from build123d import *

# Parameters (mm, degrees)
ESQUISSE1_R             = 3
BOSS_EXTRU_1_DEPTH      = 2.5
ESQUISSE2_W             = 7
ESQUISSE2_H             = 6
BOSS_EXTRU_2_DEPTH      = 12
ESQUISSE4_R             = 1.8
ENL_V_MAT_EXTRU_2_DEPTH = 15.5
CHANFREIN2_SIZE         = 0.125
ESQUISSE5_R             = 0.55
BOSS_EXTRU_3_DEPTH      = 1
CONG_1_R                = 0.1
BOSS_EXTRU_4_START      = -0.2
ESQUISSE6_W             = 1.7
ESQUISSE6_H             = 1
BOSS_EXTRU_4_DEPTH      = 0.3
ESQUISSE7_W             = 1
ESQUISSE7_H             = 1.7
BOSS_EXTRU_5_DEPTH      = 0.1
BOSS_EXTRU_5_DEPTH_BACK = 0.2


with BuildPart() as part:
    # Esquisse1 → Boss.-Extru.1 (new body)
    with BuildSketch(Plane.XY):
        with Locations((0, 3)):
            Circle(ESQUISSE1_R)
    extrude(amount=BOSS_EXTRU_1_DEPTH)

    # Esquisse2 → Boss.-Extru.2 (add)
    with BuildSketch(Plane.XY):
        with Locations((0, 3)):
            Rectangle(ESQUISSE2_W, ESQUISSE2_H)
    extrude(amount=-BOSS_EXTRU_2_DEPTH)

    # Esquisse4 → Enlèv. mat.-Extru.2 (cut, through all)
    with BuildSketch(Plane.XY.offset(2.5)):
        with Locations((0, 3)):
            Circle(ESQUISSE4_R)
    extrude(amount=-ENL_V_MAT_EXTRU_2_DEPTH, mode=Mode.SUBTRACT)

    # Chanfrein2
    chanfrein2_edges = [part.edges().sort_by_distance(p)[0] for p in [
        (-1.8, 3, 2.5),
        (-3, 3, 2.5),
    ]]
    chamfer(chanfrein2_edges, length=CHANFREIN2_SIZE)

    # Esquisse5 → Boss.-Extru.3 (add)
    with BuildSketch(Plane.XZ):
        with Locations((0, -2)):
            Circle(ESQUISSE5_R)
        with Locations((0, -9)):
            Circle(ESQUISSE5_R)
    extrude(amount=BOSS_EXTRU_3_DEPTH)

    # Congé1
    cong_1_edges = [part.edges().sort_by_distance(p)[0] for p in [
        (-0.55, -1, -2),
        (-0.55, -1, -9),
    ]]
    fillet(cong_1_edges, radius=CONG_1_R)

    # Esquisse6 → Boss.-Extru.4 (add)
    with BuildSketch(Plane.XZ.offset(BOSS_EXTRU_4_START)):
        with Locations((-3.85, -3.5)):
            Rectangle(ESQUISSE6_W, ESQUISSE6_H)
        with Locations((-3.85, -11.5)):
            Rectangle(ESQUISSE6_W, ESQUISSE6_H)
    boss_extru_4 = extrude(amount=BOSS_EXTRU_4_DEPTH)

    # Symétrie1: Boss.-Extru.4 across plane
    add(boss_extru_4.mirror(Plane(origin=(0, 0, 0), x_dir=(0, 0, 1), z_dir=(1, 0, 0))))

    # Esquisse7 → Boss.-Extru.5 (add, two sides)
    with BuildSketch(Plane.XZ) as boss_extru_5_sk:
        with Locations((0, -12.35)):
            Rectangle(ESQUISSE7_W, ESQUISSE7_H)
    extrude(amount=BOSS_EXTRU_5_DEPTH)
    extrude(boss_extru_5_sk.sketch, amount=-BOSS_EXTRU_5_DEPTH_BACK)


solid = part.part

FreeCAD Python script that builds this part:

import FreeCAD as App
import Part
import Sketcher
from FreeCAD import Vector


def edges_at(feature, points):
    """Names of the edges that pass closest to the given points."""
    edges = feature.Shape.Edges
    near = lambda p: min(range(len(edges)), key=lambda i: edges[i].distToShape(Part.Vertex(*p))[0])
    return sorted({f"Edge{near(p) + 1}" for p in points})

doc = App.newDocument("Part")
body = doc.addObject("PartDesign::Body", "Body")

sketch1 = body.newObject("Sketcher::SketchObject", "Sketch")
sketch1.AttachmentSupport = (doc.getObject("XY_Plane"), [""])
sketch1.MapMode = "FlatFace"
sketch1.addGeometry(Part.Circle(Vector(0, 3, 0), Vector(0, 0, 1), 3), False)
sketch1.addConstraint(Sketcher.Constraint("PointOnObject", 0, 3, -2))
sketch1.addConstraint(Sketcher.Constraint("Diameter", 0, 6.0))
sketch1.addConstraint(Sketcher.Constraint("DistanceY", -1, 1, 0, 3, 3.0))
pad1 = body.newObject("PartDesign::Pad", "Pad")
pad1.Profile = sketch1
pad1.Length = 2.5

sketch2 = body.newObject("Sketcher::SketchObject", "Sketch001")
sketch2.AttachmentSupport = (doc.getObject("XY_Plane"), [""])
sketch2.MapMode = "FlatFace"
sketch2.addGeometry(Part.LineSegment(Vector(-4, 6, 0), Vector(-4, 0, 0)), False)
sketch2.addGeometry(Part.LineSegment(Vector(-4, 0, 0), Vector(4, 0, 0)), False)
sketch2.addGeometry(Part.LineSegment(Vector(4, 0, 0), Vector(4, 6, 0)), False)
sketch2.addGeometry(Part.LineSegment(Vector(4, 6, 0), Vector(-4, 6, 0)), False)
sketch2.addConstraint(Sketcher.Constraint("Coincident", 0, 2, 1, 1))
sketch2.addConstraint(Sketcher.Constraint("Coincident", 1, 2, 2, 1))
sketch2.addConstraint(Sketcher.Constraint("Coincident", 2, 2, 3, 1))
sketch2.addConstraint(Sketcher.Constraint("Coincident", 3, 2, 0, 1))
sketch2.addConstraint(Sketcher.Constraint("Vertical", 0))
sketch2.addConstraint(Sketcher.Constraint("Horizontal", 1))
sketch2.addConstraint(Sketcher.Constraint("Vertical", 2))
sketch2.addConstraint(Sketcher.Constraint("Horizontal", 3))
sketch2.addConstraint(Sketcher.Constraint("Symmetric", 0, 2, 1, 2, -1, 1))
sketch2.addConstraint(Sketcher.Constraint("DistanceX", 1, 1, 1, 2, 7.0))
sketch2.addConstraint(Sketcher.Constraint("DistanceY", 0, 2, 0, 1, 6.0))
pad2 = body.newObject("PartDesign::Pad", "Pad001")
pad2.Profile = sketch2
pad2.Length = 12
pad2.Reversed = True

sketch3 = body.newObject("Sketcher::SketchObject", "Sketch002")
sketch3.AttachmentSupport = (doc.getObject("XY_Plane"), [""])
sketch3.MapMode = "FlatFace"
sketch3.AttachmentOffset = App.Placement(Vector(0, 0, 2.5), App.Rotation())
sketch3.addGeometry(Part.Circle(Vector(0, 3, 0), Vector(0, 0, 1), 1.8), False)
sketch3.addConstraint(Sketcher.Constraint("PointOnObject", 0, 3, -2))
sketch3.addConstraint(Sketcher.Constraint("Diameter", 0, 3.6))
sketch3.addConstraint(Sketcher.Constraint("DistanceY", -1, 1, 0, 3, 3.0))
pocket1 = body.newObject("PartDesign::Pocket", "Pocket")
pocket1.Profile = sketch3
pocket1.Type = "ThroughAll"
doc.recompute()

chamfer = body.newObject("PartDesign::Chamfer", "Chamfer")
chamfer.Base = (pocket1, edges_at(pocket1, [(-1.8, 3, 2.5), (-3, 3, 2.5)]))
chamfer.Size = 0.125

sketch4 = body.newObject("Sketcher::SketchObject", "Sketch003")
sketch4.AttachmentSupport = (doc.getObject("XZ_Plane"), [""])
sketch4.MapMode = "FlatFace"
sketch4.addGeometry(Part.Circle(Vector(0, -2, 0), Vector(0, 0, 1), 0.6), False)
sketch4.addGeometry(Part.Circle(Vector(0, -9, 0), Vector(0, 0, 1), 0.6), False)
sketch4.addConstraint(Sketcher.Constraint("Equal", 0, 1))
sketch4.addConstraint(Sketcher.Constraint("PointOnObject", 0, 3, -2))
sketch4.addConstraint(Sketcher.Constraint("PointOnObject", 1, 3, -2))
sketch4.addConstraint(Sketcher.Constraint("Diameter", 0, 1.1))
sketch4.addConstraint(Sketcher.Constraint("DistanceY", 0, 3, -1, 1, 2.0))
sketch4.addConstraint(Sketcher.Constraint("DistanceY", 1, 3, -1, 1, 9.0))
pad3 = body.newObject("PartDesign::Pad", "Pad002")
pad3.Profile = sketch4
pad3.Length = 1
doc.recompute()

fillet = body.newObject("PartDesign::Fillet", "Fillet")
fillet.Base = (pad3, edges_at(pad3, [(-0.55, -1, -2), (-0.55, -1, -9)]))
fillet.Radius = 0.1

sketch5 = body.newObject("Sketcher::SketchObject", "Sketch004")
sketch5.AttachmentSupport = (doc.getObject("XZ_Plane"), [""])
sketch5.MapMode = "FlatFace"
sketch5.AttachmentOffset = App.Placement(Vector(0, 0, -0.2), App.Rotation())
sketch5.addGeometry(Part.LineSegment(Vector(-4.7, -3, 0), Vector(-4.7, -4, 0)), False)
sketch5.addGeometry(Part.LineSegment(Vector(-4.7, -4, 0), Vector(-3, -4, 0)), False)
sketch5.addGeometry(Part.LineSegment(Vector(-3, -4, 0), Vector(-3, -3, 0)), False)
sketch5.addGeometry(Part.LineSegment(Vector(-3, -3, 0), Vector(-4.7, -3, 0)), False)
sketch5.addGeometry(Part.LineSegment(Vector(-4.7, -11, 0), Vector(-4.7, -12, 0)), False)
sketch5.addGeometry(Part.LineSegment(Vector(-4.7, -12, 0), Vector(-3, -12, 0)), False)
sketch5.addGeometry(Part.LineSegment(Vector(-3, -12, 0), Vector(-3, -11, 0)), False)
sketch5.addGeometry(Part.LineSegment(Vector(-3, -11, 0), Vector(-4.7, -11, 0)), False)
sketch5.addConstraint(Sketcher.Constraint("Coincident", 0, 2, 1, 1))
sketch5.addConstraint(Sketcher.Constraint("Coincident", 1, 2, 2, 1))
sketch5.addConstraint(Sketcher.Constraint("Coincident", 2, 2, 3, 1))
sketch5.addConstraint(Sketcher.Constraint("Coincident", 3, 2, 0, 1))
sketch5.addConstraint(Sketcher.Constraint("Coincident", 4, 2, 5, 1))
sketch5.addConstraint(Sketcher.Constraint("Coincident", 5, 2, 6, 1))
sketch5.addConstraint(Sketcher.Constraint("Coincident", 6, 2, 7, 1))
sketch5.addConstraint(Sketcher.Constraint("Coincident", 7, 2, 4, 1))
sketch5.addConstraint(Sketcher.Constraint("Vertical", 0))
sketch5.addConstraint(Sketcher.Constraint("Horizontal", 1))
sketch5.addConstraint(Sketcher.Constraint("Vertical", 2))
sketch5.addConstraint(Sketcher.Constraint("Horizontal", 3))
sketch5.addConstraint(Sketcher.Constraint("Vertical", 4))
sketch5.addConstraint(Sketcher.Constraint("Horizontal", 5))
sketch5.addConstraint(Sketcher.Constraint("Vertical", 6))
sketch5.addConstraint(Sketcher.Constraint("Horizontal", 7))
sketch5.addConstraint(Sketcher.Constraint("Vertical", 3, 2, 4, 2))
sketch5.addConstraint(Sketcher.Constraint("Vertical", 2, 2, 5, 2))
sketch5.addConstraint(Sketcher.Constraint("Equal", 2, 4))
sketch5.addConstraint(Sketcher.Constraint("DistanceY", 0, 2, 0, 1, 1.0))
sketch5.addConstraint(Sketcher.Constraint("DistanceX", 1, 1, 1, 2, 1.7))
sketch5.addConstraint(Sketcher.Constraint("DistanceY", 0, 2, -1, 1, 4.0))
sketch5.addConstraint(Sketcher.Constraint("DistanceX", 1, 2, -1, 1, 3.0))
sketch5.addConstraint(Sketcher.Constraint("DistanceY", 4, 2, -1, 1, 12.0))
pad4 = body.newObject("PartDesign::Pad", "Pad003")
pad4.Profile = sketch5
pad4.Length = 0.3
doc.recompute()

mirrored = body.newObject("PartDesign::Mirrored", "Mirrored")
mirrored.Originals = [pad4]
mirrored.MirrorPlane = (doc.getObject("YZ_Plane"), [""])
body.Tip = mirrored

sketch6 = body.newObject("Sketcher::SketchObject", "Sketch005")
sketch6.AttachmentSupport = (doc.getObject("XZ_Plane"), [""])
sketch6.MapMode = "FlatFace"
sketch6.addGeometry(Part.LineSegment(Vector(-0.5, -11.5, 0), Vector(-0.5, -13.2, 0)), False)
sketch6.addGeometry(Part.LineSegment(Vector(-0.5, -13.2, 0), Vector(0.5, -13.2, 0)), False)
sketch6.addGeometry(Part.LineSegment(Vector(0.5, -13.2, 0), Vector(0.5, -11.5, 0)), False)
sketch6.addGeometry(Part.LineSegment(Vector(0.5, -11.5, 0), Vector(-0.5, -11.5, 0)), False)
sketch6.addConstraint(Sketcher.Constraint("Coincident", 0, 2, 1, 1))
sketch6.addConstraint(Sketcher.Constraint("Coincident", 1, 2, 2, 1))
sketch6.addConstraint(Sketcher.Constraint("Coincident", 2, 2, 3, 1))
sketch6.addConstraint(Sketcher.Constraint("Coincident", 3, 2, 0, 1))
sketch6.addConstraint(Sketcher.Constraint("Vertical", 0))
sketch6.addConstraint(Sketcher.Constraint("Horizontal", 1))
sketch6.addConstraint(Sketcher.Constraint("Vertical", 2))
sketch6.addConstraint(Sketcher.Constraint("Horizontal", 3))
sketch6.addConstraint(Sketcher.Constraint("DistanceX", 1, 1, 1, 2, 1.0))
sketch6.addConstraint(Sketcher.Constraint("DistanceY", 0, 2, 0, 1, 1.7))
sketch6.addConstraint(Sketcher.Constraint("DistanceX", 0, 2, -1, 1, 0.5))
sketch6.addConstraint(Sketcher.Constraint("DistanceY", 0, 2, -1, 1, 13.2))
pad5 = body.newObject("PartDesign::Pad", "Pad004")
pad5.Profile = sketch6
pad5.Type = "TwoLengths"
pad5.Length = 0.1
pad5.Length2 = 0.2

doc.recompute()
